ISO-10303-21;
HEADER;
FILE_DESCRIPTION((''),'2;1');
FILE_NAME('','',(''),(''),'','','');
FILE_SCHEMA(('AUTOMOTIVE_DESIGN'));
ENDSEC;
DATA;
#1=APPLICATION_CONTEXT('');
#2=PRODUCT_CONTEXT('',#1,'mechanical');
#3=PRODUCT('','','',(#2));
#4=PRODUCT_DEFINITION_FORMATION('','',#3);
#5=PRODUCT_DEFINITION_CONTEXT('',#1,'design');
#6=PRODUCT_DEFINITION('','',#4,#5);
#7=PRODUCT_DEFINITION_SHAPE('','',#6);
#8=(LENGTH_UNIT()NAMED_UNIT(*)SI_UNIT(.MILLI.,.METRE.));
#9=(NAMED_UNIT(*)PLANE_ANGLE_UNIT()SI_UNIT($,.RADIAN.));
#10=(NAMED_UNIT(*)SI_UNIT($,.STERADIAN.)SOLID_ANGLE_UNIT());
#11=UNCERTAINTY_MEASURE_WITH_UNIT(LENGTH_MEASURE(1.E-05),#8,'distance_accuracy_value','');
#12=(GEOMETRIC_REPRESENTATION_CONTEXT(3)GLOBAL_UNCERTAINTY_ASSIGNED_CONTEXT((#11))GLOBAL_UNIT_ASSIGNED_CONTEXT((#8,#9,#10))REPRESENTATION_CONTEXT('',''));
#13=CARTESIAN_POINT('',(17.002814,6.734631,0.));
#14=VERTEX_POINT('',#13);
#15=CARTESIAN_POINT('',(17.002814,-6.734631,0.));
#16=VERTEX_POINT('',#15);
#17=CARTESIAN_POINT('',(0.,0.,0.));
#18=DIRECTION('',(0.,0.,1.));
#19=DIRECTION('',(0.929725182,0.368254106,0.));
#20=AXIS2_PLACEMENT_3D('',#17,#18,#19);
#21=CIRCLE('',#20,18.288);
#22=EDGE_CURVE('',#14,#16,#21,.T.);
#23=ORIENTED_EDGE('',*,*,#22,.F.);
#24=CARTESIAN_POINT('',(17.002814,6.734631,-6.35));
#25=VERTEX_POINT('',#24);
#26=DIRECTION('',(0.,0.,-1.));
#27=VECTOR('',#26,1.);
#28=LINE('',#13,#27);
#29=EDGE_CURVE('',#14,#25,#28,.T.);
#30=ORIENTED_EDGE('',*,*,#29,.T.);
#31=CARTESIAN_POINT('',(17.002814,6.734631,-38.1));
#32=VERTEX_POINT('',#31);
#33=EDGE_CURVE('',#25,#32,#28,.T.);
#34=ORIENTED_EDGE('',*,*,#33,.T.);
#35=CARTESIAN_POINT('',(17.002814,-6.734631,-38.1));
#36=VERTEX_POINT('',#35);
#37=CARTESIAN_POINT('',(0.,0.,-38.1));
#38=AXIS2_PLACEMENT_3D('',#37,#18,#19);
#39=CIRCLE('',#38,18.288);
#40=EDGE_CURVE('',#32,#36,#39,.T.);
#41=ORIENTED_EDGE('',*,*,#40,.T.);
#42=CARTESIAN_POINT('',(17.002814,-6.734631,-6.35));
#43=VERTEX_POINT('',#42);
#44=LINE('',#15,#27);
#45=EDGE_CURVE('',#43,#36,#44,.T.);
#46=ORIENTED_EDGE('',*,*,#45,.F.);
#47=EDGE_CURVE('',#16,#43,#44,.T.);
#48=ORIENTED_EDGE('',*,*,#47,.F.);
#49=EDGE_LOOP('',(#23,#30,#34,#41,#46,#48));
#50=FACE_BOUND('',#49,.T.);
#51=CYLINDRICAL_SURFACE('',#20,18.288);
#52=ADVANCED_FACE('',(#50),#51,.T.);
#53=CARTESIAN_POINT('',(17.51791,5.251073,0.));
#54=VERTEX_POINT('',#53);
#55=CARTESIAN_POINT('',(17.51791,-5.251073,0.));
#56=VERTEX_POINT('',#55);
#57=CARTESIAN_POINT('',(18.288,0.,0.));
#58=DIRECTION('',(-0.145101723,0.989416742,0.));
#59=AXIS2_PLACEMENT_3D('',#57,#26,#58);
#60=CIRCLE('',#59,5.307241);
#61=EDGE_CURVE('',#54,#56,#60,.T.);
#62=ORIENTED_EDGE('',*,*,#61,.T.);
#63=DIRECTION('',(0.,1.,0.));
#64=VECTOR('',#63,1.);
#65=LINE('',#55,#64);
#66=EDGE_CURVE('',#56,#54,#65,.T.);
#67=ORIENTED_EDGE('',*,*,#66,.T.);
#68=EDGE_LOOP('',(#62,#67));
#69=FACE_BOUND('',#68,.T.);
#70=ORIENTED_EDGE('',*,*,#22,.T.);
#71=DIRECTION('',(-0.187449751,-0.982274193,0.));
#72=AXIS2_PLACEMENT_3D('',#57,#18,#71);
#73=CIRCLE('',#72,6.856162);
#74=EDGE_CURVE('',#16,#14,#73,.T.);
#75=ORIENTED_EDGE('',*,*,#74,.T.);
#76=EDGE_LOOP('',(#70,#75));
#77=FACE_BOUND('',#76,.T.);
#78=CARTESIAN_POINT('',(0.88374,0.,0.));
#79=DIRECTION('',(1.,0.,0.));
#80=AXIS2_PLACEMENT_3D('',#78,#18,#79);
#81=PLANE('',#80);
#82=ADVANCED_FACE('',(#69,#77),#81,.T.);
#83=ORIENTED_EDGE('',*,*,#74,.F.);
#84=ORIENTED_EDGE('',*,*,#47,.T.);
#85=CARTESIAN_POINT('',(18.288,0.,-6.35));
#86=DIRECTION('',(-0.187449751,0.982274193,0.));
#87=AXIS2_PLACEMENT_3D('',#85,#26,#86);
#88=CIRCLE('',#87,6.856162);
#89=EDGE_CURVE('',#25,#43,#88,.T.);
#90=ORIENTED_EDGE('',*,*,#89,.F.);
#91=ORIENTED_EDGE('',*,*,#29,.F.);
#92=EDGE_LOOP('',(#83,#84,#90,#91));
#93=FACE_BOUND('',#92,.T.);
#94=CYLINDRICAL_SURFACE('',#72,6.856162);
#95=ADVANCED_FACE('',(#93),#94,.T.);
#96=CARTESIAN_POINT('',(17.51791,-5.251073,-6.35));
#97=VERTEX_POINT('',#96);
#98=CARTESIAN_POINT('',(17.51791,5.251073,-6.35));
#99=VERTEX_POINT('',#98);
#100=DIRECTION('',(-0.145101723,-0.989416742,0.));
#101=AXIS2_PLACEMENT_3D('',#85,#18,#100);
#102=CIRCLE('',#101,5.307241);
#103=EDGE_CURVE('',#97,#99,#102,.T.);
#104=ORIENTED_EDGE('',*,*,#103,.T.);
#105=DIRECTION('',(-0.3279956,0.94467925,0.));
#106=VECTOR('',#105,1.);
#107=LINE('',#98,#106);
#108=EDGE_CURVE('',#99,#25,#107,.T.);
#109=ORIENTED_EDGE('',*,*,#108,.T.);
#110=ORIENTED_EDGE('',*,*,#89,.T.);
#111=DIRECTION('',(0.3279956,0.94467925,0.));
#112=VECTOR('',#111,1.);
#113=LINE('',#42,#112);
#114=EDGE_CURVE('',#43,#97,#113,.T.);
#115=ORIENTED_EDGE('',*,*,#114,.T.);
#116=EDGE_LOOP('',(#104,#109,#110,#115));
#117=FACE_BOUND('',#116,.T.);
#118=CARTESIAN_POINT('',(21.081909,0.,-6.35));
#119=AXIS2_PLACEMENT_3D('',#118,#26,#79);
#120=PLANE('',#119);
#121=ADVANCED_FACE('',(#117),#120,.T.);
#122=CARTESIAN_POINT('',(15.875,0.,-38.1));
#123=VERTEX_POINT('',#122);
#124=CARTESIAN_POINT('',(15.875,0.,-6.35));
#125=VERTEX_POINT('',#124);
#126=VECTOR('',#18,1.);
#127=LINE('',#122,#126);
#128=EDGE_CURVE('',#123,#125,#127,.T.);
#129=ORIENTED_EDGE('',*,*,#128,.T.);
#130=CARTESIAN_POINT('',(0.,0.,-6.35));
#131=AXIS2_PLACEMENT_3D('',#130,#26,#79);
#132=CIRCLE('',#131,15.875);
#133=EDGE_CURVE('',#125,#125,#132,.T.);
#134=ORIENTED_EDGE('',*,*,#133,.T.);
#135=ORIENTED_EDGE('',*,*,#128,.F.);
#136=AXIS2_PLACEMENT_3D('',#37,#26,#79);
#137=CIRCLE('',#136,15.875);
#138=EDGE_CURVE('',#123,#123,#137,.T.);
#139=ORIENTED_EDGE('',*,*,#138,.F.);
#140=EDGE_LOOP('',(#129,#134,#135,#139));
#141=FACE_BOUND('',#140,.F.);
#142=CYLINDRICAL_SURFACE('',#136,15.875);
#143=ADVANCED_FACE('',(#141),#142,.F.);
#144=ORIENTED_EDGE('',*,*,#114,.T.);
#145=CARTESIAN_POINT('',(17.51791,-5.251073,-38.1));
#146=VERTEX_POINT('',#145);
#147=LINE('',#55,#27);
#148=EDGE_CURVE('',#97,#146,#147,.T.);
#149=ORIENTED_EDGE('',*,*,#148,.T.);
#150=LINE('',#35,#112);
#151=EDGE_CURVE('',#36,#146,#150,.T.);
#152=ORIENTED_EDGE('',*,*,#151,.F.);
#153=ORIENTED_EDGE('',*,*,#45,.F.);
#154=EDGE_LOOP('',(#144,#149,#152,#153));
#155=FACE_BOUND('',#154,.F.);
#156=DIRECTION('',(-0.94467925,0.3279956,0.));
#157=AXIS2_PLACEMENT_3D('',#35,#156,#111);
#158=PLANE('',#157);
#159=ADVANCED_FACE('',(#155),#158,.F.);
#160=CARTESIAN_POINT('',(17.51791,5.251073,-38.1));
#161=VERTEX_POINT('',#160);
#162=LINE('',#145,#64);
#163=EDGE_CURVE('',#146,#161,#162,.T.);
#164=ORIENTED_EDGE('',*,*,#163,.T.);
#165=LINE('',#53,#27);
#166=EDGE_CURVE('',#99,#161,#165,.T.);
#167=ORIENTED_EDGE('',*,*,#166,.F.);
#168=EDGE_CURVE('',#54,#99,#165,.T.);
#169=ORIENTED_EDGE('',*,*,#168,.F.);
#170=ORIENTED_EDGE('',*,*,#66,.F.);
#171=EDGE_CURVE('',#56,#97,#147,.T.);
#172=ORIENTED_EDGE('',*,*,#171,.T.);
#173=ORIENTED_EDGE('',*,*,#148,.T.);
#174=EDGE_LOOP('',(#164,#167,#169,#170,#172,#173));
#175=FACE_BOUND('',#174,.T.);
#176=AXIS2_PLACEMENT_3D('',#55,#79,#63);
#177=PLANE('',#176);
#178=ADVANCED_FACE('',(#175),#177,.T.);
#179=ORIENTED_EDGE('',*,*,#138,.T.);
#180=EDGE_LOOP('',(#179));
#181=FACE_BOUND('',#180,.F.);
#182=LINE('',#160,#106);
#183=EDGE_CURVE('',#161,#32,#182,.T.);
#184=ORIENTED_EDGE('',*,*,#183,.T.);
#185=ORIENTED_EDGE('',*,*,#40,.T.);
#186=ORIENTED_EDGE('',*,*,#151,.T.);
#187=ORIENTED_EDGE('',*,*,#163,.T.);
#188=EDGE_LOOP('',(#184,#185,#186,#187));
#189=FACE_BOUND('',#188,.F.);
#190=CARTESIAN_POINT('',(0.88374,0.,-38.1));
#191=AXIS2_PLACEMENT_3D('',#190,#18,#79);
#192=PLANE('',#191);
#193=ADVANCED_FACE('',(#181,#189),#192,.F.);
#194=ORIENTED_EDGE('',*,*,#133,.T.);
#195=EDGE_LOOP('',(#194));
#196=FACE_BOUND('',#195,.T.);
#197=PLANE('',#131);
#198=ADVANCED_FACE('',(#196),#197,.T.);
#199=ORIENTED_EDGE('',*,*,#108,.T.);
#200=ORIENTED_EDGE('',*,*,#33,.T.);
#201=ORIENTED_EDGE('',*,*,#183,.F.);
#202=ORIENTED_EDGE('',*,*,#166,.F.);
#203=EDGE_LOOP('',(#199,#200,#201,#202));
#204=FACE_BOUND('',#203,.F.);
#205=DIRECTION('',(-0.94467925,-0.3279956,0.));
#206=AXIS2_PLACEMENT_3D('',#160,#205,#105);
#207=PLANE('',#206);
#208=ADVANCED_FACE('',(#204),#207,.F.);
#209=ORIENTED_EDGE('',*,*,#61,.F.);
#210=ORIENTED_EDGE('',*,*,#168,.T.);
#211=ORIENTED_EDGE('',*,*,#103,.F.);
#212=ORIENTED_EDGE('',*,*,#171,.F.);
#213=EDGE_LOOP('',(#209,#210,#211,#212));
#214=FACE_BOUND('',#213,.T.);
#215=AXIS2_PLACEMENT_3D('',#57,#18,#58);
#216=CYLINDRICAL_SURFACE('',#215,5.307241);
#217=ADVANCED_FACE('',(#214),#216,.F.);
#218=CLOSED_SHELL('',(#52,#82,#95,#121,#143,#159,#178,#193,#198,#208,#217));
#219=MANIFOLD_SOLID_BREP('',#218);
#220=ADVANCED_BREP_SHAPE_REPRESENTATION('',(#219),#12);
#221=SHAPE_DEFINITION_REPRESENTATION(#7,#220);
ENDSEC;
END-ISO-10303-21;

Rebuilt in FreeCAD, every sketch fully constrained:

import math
import FreeCAD as App
import Part
import Sketcher
from FreeCAD import Vector
Q = App.Units.Quantity

doc = App.newDocument("Part")
body = doc.addObject("PartDesign::Body", "Body")

# Sketch on XY plane
sketch1 = body.newObject("Sketcher::SketchObject", "Sketch")
sketch1.AttachmentSupport = (doc.getObject("XY_Plane"), [""])
sketch1.MapMode = "FlatFace"
sketch1.addGeometry([
    Part.ArcOfCircle(Part.Circle(Vector(0, 0, 0), Vector(0, 0, 1), 18.288), math.radians(21.607984), math.radians(338.392016)),
    Part.ArcOfCircle(Part.Circle(Vector(18.288, 0, 0), Vector(0, 0, 1), 6.856162), math.radians(-100.803992), math.radians(100.803992)),
    Part.LineSegment(Vector(17.51791, -5.251073, 0), Vector(17.51791, 5.251073, 0)),
    Part.ArcOfCircle(Part.Circle(Vector(18.288, 0, 0), Vector(0, 0, 1), 5.307241), math.radians(-98.34317), math.radians(98.34317)),
], False)
sketch1.addConstraint([
    Sketcher.Constraint("Coincident", 0, 1, 1, 2),
    Sketcher.Constraint("Coincident", 1, 1, 0, 2),
    Sketcher.Constraint("Coincident", 2, 1, 3, 1),
    Sketcher.Constraint("Coincident", 3, 2, 2, 2),
    Sketcher.Constraint("Vertical", 2),
    Sketcher.Constraint("Coincident", 0, 3, -1, 1),
    Sketcher.Constraint("Coincident", 3, 3, 1, 3),
    Sketcher.Constraint("PointOnObject", 1, 3, -1),
    Sketcher.Constraint("Radius", 0, Q("0.72 in")),
    Sketcher.Constraint("DistanceX", -1, 1, 1, 3, Q("0.72 in")),
    Sketcher.Constraint("Radius", 3, 5.307241),
    Sketcher.Constraint("Radius", 1, 6.856162),
    Sketcher.Constraint("DistanceY", 2, 1, 2, 2, 10.502145),
])
pad1 = body.newObject("PartDesign::Pad", "Pad")
pad1.Profile = sketch1
pad1.Length = Q("1.5 in")
pad1.Reversed = True

# Sketch on XY plane
sketch2 = body.newObject("Sketcher::SketchObject", "Sketch001")
sketch2.AttachmentSupport = (doc.getObject("XY_Plane"), [""])
sketch2.MapMode = "FlatFace"
sketch2.AttachmentOffset = App.Placement(Vector(0, 0, -1.5 * 25.4), App.Rotation())
sketch2.addGeometry(Part.Circle(Vector(0, 0, 0), Vector(0, 0, 1), 15.875), False)
sketch2.addConstraint([
    Sketcher.Constraint("Coincident", 0, 3, -1, 1),
    Sketcher.Constraint("Diameter", 0, Q("1.25 in")),
])
pocket1 = body.newObject("PartDesign::Pocket", "Pocket")
pocket1.Profile = sketch2
pocket1.Length = Q("1.25 in")
pocket1.Reversed = True

# Sketch on XY plane
sketch3 = body.newObject("Sketcher::SketchObject", "Sketch002")
sketch3.AttachmentSupport = (doc.getObject("XY_Plane"), [""])
sketch3.MapMode = "FlatFace"
sketch3.AttachmentOffset = App.Placement(Vector(0, 0, -1.5 * 25.4), App.Rotation())
sketch3.addGeometry([
    Part.ArcOfCircle(Part.Circle(Vector(18.288, 0, 0), Vector(0, 0, 1), 6.856162), math.radians(-100.803992), math.radians(100.803992)),
    Part.LineSegment(Vector(17.002814, -6.734631, 0), Vector(17.51791, -5.251073, 0)),
    Part.ArcOfCircle(Part.Circle(Vector(18.288, 0, 0), Vector(0, 0, 1), 5.307241), math.radians(-98.34317), math.radians(98.34317)),
    Part.LineSegment(Vector(17.51791, 5.251073, 0), Vector(17.002814, 6.734631, 0)),
], False)
sketch3.addConstraint([
    Sketcher.Constraint("Coincident", 0, 1, 1, 1),
    Sketcher.Constraint("Coincident", 1, 2, 2, 1),
    Sketcher.Constraint("Coincident", 2, 2, 3, 1),
    Sketcher.Constraint("Coincident", 3, 2, 0, 2),
    Sketcher.Constraint("Coincident", 2, 3, 0, 3),
    Sketcher.Constraint("Symmetric", 1, 2, 2, 2, -1),
    Sketcher.Constraint("Vertical", 0, 1, 3, 2),
    Sketcher.Constraint("DistanceX", -1, 1, 0, 3, Q("0.72 in")),
    Sketcher.Constraint("Radius", 2, 5.307241),
    Sketcher.Constraint("Radius", 0, 6.856162),
    Sketcher.Constraint("DistanceY", 0, 1, -1, 1, 6.734631),
    Sketcher.Constraint("DistanceX", -1, 1, 1, 2, 17.51791),
])
pocket2 = body.newObject("PartDesign::Pocket", "Pocket001")
pocket2.Profile = sketch3
pocket2.Length = Q("1.25 in")
pocket2.Reversed = True

doc.recompute()
